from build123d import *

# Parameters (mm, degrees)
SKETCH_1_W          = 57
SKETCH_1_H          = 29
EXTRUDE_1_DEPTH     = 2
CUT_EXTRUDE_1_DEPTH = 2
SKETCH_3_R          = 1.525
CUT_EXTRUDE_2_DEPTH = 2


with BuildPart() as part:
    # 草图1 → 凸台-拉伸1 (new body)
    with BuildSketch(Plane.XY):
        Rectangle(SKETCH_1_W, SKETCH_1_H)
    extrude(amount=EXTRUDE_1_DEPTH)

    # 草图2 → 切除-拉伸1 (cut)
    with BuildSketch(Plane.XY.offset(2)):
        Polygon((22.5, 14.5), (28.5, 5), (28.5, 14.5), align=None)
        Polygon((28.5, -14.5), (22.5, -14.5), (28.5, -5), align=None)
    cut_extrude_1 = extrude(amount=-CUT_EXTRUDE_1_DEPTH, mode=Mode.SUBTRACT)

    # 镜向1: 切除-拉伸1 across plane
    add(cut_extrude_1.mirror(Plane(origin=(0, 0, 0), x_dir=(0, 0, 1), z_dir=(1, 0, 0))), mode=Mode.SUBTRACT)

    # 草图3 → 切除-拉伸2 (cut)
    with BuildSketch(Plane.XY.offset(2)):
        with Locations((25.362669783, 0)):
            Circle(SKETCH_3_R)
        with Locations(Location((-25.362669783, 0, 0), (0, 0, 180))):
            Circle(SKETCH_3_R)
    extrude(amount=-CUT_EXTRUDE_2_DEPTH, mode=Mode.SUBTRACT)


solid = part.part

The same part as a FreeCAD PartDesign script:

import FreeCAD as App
import Part
import Sketcher
Q = App.Units.Quantity


def add_polygon(sketch, points):
    """Adds a closed chain of lines whose ends are joined by coincident constraints."""
    first, n = sketch.GeometryCount, len(points)
    for a, b in zip(points, points[1:] + points[:1]):
        sketch.addGeometry(Part.LineSegment(App.Vector(*a, 0), App.Vector(*b, 0)), False)
    for i in range(n):
        sketch.addConstraint(Sketcher.Constraint("Coincident", first + i, 2, first + (i + 1) % n, 1))

doc = App.newDocument("Part")
body = doc.addObject("PartDesign::Body", "Body")

# Sketch on XY plane
sketch1 = body.newObject("Sketcher::SketchObject", "Sketch")
sketch1.AttachmentSupport = (doc.getObject("XY_Plane"), [""])
sketch1.MapMode = "FlatFace"
add_polygon(sketch1, [(-28, 14), (-28, -14), (28, -14), (28, 14)])  # lines 0-3
sketch1.addConstraint(Sketcher.Constraint("Vertical", 0))
sketch1.addConstraint(Sketcher.Constraint("Horizontal", 1))
sketch1.addConstraint(Sketcher.Constraint("Vertical", 2))
sketch1.addConstraint(Sketcher.Constraint("Horizontal", 3))
sketch1.addConstraint(Sketcher.Constraint("Symmetric", 0, 2, 2, 2, -1, 1))
sketch1.addConstraint(Sketcher.Constraint("DistanceX", 1, 1, 1, 2, Q("57 mm")))
sketch1.addConstraint(Sketcher.Constraint("DistanceY", 0, 2, 0, 1, Q("29 mm")))
pad1 = body.newObject("PartDesign::Pad", "Pad")
pad1.Profile = sketch1
pad1.Length = 2

# Sketch on XY plane
sketch2 = body.newObject("Sketcher::SketchObject", "Sketch001")
sketch2.AttachmentSupport = (doc.getObject("XY_Plane"), [""])
sketch2.MapMode = "FlatFace"
sketch2.AttachmentOffset = App.Placement(App.Vector(0, 0, 2), App.Rotation())
add_polygon(sketch2, [(22, 14), (28, 5), (28, 14)])  # lines 0-2
add_polygon(sketch2, [(22, -14), (28, -14), (28, -5)])  # lines 3-5
sketch2.addConstraint(Sketcher.Constraint("Vertical", 1))
sketch2.addConstraint(Sketcher.Constraint("Horizontal", 2))
sketch2.addConstraint(Sketcher.Constraint("Horizontal", 3))
sketch2.addConstraint(Sketcher.Constraint("Vertical", 4))
sketch2.addConstraint(Sketcher.Constraint("Symmetric", 1, 2, 3, 2, -1))
sketch2.addConstraint(Sketcher.Constraint("Vertical", 2, 2, 5, 2))
sketch2.addConstraint(Sketcher.Constraint("Equal", 1, 4))
sketch2.addConstraint(Sketcher.Constraint("DistanceX", 2, 2, 2, 1, Q("6 mm")))
sketch2.addConstraint(Sketcher.Constraint("DistanceY", 1, 1, 1, 2, Q("9.5 mm")))
sketch2.addConstraint(Sketcher.Constraint("DistanceY", -1, 1, 0, 2, Q("5 mm")))
sketch2.addConstraint(Sketcher.Constraint("DistanceX", -1, 1, 0, 2, Q("28.5 mm")))
pocket1 = body.newObject("PartDesign::Pocket", "Pocket")
pocket1.Profile = sketch2
pocket1.Length = 2
doc.recompute()

mirrored = body.newObject("PartDesign::Mirrored", "Mirrored")
mirrored.Originals = [pocket1]
mirrored.MirrorPlane = (doc.getObject("YZ_Plane"), [""])
body.Tip = mirrored

# Sketch on XY plane
sketch3 = body.newObject("Sketcher::SketchObject", "Sketch002")
sketch3.AttachmentSupport = (doc.getObject("XY_Plane"), [""])
sketch3.MapMode = "FlatFace"
sketch3.AttachmentOffset = App.Placement(App.Vector(0, 0, 2), App.Rotation())
sketch3.addGeometry(Part.Circle(App.Vector(25.4, 0, 0), App.Vector(0, 0, 1), 1.5), False)
sketch3.addGeometry(Part.Circle(App.Vector(-25.4, 0, 0), App.Vector(0, 0, 1), 1.5), False)
sketch3.addConstraint(Sketcher.Constraint("Equal", 0, 1))
sketch3.addConstraint(Sketcher.Constraint("Symmetric", 0, 3, 1, 3, -1, 1))
sketch3.addConstraint(Sketcher.Constraint("PointOnObject", 0, 3, -1))
sketch3.addConstraint(Sketcher.Constraint("Diameter", 0, Q("3.05 mm")))
sketch3.addConstraint(Sketcher.Constraint("DistanceX", -1, 1, 0, 3, Q("25.36267 mm")))
pocket2 = body.newObject("PartDesign::Pocket", "Pocket001")
pocket2.Profile = sketch3
pocket2.Length = 2

doc.recompute()
